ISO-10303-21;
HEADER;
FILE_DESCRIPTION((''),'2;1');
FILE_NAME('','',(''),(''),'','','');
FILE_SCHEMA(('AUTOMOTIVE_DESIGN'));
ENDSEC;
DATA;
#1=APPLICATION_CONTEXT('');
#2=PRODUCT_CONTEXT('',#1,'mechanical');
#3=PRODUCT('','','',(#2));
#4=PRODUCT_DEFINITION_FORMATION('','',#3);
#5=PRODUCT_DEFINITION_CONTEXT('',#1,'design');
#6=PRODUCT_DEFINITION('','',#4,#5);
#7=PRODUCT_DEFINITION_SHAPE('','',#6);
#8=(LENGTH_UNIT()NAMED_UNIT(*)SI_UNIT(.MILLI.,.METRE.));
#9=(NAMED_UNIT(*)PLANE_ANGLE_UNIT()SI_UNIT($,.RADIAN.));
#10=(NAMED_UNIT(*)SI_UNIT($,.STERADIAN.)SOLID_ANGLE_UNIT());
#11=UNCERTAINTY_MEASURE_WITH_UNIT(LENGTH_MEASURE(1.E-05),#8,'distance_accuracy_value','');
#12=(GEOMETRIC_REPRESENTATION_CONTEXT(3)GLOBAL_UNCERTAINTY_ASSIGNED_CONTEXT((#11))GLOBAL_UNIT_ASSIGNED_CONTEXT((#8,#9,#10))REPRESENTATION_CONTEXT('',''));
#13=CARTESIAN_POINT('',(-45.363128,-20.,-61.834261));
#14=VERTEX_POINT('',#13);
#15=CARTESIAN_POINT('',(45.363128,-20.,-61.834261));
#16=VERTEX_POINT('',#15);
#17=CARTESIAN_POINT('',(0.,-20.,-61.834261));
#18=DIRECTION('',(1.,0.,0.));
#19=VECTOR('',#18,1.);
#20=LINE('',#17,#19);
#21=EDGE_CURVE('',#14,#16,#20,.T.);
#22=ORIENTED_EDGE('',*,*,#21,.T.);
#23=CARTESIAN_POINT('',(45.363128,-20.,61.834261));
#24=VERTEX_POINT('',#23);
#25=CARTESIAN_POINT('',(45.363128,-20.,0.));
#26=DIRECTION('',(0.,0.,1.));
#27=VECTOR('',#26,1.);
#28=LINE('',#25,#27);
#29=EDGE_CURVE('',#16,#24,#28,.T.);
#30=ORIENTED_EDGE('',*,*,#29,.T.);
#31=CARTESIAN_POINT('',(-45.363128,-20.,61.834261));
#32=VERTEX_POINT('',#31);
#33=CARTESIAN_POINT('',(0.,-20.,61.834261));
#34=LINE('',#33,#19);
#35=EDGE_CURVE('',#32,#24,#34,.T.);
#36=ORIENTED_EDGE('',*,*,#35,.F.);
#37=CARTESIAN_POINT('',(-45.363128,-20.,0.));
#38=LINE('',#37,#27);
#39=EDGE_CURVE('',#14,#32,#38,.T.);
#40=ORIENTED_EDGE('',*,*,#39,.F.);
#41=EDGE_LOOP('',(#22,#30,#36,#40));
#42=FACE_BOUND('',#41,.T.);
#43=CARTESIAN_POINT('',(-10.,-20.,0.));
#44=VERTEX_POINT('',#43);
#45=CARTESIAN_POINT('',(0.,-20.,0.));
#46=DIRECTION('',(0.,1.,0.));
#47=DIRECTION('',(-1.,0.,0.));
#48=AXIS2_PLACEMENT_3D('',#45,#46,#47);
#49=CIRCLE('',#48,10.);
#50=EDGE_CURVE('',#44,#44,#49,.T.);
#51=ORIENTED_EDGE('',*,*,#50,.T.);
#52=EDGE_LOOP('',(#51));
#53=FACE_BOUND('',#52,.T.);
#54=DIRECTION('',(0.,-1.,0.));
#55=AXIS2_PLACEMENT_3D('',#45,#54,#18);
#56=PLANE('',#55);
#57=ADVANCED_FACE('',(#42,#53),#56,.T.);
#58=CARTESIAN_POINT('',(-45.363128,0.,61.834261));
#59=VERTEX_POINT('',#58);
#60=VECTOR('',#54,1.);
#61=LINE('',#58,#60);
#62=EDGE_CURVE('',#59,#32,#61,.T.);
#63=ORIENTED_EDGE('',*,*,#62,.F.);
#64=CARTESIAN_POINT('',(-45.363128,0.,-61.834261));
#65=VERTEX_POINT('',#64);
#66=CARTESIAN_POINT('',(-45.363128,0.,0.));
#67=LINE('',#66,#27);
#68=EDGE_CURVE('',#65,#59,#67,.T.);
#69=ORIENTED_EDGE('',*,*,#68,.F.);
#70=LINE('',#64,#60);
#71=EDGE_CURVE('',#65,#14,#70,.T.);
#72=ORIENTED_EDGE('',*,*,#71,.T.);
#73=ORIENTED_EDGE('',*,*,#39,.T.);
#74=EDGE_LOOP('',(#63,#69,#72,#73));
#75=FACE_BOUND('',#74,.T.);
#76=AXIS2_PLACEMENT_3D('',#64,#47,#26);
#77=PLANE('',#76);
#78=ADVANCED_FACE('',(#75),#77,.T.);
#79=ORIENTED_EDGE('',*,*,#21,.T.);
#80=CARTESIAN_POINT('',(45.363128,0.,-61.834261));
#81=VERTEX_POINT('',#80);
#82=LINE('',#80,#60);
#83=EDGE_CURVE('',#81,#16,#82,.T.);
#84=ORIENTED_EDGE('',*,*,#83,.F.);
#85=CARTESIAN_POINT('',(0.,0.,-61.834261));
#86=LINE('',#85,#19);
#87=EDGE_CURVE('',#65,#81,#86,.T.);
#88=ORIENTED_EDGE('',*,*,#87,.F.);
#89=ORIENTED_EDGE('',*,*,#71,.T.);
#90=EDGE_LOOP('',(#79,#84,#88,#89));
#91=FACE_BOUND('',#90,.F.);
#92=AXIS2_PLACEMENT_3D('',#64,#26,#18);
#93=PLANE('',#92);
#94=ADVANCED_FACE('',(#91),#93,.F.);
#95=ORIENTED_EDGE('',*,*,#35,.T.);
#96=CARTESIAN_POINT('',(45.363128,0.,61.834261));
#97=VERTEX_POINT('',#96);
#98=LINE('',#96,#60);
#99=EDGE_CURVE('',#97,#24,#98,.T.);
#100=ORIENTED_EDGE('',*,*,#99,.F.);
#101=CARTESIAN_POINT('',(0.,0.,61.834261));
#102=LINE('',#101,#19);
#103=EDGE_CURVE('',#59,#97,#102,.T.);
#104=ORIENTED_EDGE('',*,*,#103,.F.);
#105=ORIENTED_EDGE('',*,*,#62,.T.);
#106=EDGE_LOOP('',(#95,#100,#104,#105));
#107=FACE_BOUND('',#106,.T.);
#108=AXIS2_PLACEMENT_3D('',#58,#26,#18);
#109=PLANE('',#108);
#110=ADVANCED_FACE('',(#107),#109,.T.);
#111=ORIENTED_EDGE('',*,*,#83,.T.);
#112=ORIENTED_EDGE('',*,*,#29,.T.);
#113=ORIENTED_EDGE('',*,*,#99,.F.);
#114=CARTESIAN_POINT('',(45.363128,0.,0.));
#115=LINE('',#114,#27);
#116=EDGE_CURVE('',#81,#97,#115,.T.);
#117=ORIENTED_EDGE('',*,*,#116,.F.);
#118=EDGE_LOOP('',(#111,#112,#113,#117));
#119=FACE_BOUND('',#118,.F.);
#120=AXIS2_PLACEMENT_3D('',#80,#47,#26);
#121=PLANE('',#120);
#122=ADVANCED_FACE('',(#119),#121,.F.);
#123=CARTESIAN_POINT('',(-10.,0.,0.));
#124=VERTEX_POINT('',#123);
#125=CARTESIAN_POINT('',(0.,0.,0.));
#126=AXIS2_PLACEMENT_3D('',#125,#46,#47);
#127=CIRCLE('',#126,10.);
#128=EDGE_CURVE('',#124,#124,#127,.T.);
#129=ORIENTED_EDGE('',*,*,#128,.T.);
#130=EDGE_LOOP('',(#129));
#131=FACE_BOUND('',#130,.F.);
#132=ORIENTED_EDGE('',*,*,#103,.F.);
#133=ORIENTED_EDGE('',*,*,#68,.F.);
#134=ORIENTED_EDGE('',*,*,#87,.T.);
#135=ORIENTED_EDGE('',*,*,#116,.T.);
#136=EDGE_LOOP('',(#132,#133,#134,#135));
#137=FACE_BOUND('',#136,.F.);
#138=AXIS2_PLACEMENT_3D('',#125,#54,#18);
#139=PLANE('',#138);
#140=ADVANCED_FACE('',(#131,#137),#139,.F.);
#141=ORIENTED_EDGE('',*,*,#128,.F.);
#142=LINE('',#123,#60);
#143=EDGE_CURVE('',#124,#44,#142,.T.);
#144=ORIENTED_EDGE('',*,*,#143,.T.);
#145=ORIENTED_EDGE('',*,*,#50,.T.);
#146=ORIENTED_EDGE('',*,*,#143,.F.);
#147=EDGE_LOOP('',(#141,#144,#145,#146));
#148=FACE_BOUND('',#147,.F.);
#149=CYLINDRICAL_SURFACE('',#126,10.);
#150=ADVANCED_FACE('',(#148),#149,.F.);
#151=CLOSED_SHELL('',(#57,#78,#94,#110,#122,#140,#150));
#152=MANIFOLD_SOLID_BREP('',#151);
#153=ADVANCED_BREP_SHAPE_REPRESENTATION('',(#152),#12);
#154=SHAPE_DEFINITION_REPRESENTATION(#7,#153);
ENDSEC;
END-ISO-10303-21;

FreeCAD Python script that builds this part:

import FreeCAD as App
import Part
import Sketcher
Q = App.Units.Quantity

doc = App.newDocument("Part")
body = doc.addObject("PartDesign::Body", "Body")

sketch1 = body.newObject("Sketcher::SketchObject", "Sketch")
sketch1.AttachmentSupport = (doc.getObject("XZ_Plane"), [""])
sketch1.MapMode = "FlatFace"
sketch1.addGeometry([
    Part.LineSegment(App.Vector(-45, 62, 0), App.Vector(-45, -62, 0)),
    Part.LineSegment(App.Vector(-45, -62, 0), App.Vector(45, -62, 0)),
    Part.LineSegment(App.Vector(45, -62, 0), App.Vector(45, 62, 0)),
    Part.LineSegment(App.Vector(45, 62, 0), App.Vector(-45, 62, 0)),
], False)
sketch1.addConstraint([
    Sketcher.Constraint("Coincident", 0, 2, 1, 1),
    Sketcher.Constraint("Coincident", 1, 2, 2, 1),
    Sketcher.Constraint("Coincident", 2, 2, 3, 1),
    Sketcher.Constraint("Coincident", 3, 2, 0, 1),
    Sketcher.Constraint("Vertical", 0),
    Sketcher.Constraint("Horizontal", 1),
    Sketcher.Constraint("Vertical", 2),
    Sketcher.Constraint("Horizontal", 3),
    Sketcher.Constraint("Symmetric", 0, 2, 2, 2, -1, 1),
    Sketcher.Constraint("DistanceY", 0, 2, 0, 1, Q("123.668522 mm")),
    Sketcher.Constraint("DistanceX", 1, 1, 1, 2, Q("90.726256 mm")),
])
pad1 = body.newObject("PartDesign::Pad", "Pad")
pad1.Profile = sketch1
pad1.Length = 20

sketch2 = body.newObject("Sketcher::SketchObject", "Sketch001")
sketch2.AttachmentSupport = (doc.getObject("XZ_Plane"), [""])
sketch2.MapMode = "FlatFace"
sketch2.addGeometry(Part.Circle(App.Vector(0, 0, 0), App.Vector(0, 0, 1), 10), False)
sketch2.addConstraint([
    Sketcher.Constraint("Coincident", 0, 3, -1, 1),
    Sketcher.Constraint("Diameter", 0, Q("20 mm")),
])
pocket1 = body.newObject("PartDesign::Pocket", "Pocket")
pocket1.Profile = sketch2
pocket1.Length = 25
pocket1.Reversed = True

doc.recompute()
